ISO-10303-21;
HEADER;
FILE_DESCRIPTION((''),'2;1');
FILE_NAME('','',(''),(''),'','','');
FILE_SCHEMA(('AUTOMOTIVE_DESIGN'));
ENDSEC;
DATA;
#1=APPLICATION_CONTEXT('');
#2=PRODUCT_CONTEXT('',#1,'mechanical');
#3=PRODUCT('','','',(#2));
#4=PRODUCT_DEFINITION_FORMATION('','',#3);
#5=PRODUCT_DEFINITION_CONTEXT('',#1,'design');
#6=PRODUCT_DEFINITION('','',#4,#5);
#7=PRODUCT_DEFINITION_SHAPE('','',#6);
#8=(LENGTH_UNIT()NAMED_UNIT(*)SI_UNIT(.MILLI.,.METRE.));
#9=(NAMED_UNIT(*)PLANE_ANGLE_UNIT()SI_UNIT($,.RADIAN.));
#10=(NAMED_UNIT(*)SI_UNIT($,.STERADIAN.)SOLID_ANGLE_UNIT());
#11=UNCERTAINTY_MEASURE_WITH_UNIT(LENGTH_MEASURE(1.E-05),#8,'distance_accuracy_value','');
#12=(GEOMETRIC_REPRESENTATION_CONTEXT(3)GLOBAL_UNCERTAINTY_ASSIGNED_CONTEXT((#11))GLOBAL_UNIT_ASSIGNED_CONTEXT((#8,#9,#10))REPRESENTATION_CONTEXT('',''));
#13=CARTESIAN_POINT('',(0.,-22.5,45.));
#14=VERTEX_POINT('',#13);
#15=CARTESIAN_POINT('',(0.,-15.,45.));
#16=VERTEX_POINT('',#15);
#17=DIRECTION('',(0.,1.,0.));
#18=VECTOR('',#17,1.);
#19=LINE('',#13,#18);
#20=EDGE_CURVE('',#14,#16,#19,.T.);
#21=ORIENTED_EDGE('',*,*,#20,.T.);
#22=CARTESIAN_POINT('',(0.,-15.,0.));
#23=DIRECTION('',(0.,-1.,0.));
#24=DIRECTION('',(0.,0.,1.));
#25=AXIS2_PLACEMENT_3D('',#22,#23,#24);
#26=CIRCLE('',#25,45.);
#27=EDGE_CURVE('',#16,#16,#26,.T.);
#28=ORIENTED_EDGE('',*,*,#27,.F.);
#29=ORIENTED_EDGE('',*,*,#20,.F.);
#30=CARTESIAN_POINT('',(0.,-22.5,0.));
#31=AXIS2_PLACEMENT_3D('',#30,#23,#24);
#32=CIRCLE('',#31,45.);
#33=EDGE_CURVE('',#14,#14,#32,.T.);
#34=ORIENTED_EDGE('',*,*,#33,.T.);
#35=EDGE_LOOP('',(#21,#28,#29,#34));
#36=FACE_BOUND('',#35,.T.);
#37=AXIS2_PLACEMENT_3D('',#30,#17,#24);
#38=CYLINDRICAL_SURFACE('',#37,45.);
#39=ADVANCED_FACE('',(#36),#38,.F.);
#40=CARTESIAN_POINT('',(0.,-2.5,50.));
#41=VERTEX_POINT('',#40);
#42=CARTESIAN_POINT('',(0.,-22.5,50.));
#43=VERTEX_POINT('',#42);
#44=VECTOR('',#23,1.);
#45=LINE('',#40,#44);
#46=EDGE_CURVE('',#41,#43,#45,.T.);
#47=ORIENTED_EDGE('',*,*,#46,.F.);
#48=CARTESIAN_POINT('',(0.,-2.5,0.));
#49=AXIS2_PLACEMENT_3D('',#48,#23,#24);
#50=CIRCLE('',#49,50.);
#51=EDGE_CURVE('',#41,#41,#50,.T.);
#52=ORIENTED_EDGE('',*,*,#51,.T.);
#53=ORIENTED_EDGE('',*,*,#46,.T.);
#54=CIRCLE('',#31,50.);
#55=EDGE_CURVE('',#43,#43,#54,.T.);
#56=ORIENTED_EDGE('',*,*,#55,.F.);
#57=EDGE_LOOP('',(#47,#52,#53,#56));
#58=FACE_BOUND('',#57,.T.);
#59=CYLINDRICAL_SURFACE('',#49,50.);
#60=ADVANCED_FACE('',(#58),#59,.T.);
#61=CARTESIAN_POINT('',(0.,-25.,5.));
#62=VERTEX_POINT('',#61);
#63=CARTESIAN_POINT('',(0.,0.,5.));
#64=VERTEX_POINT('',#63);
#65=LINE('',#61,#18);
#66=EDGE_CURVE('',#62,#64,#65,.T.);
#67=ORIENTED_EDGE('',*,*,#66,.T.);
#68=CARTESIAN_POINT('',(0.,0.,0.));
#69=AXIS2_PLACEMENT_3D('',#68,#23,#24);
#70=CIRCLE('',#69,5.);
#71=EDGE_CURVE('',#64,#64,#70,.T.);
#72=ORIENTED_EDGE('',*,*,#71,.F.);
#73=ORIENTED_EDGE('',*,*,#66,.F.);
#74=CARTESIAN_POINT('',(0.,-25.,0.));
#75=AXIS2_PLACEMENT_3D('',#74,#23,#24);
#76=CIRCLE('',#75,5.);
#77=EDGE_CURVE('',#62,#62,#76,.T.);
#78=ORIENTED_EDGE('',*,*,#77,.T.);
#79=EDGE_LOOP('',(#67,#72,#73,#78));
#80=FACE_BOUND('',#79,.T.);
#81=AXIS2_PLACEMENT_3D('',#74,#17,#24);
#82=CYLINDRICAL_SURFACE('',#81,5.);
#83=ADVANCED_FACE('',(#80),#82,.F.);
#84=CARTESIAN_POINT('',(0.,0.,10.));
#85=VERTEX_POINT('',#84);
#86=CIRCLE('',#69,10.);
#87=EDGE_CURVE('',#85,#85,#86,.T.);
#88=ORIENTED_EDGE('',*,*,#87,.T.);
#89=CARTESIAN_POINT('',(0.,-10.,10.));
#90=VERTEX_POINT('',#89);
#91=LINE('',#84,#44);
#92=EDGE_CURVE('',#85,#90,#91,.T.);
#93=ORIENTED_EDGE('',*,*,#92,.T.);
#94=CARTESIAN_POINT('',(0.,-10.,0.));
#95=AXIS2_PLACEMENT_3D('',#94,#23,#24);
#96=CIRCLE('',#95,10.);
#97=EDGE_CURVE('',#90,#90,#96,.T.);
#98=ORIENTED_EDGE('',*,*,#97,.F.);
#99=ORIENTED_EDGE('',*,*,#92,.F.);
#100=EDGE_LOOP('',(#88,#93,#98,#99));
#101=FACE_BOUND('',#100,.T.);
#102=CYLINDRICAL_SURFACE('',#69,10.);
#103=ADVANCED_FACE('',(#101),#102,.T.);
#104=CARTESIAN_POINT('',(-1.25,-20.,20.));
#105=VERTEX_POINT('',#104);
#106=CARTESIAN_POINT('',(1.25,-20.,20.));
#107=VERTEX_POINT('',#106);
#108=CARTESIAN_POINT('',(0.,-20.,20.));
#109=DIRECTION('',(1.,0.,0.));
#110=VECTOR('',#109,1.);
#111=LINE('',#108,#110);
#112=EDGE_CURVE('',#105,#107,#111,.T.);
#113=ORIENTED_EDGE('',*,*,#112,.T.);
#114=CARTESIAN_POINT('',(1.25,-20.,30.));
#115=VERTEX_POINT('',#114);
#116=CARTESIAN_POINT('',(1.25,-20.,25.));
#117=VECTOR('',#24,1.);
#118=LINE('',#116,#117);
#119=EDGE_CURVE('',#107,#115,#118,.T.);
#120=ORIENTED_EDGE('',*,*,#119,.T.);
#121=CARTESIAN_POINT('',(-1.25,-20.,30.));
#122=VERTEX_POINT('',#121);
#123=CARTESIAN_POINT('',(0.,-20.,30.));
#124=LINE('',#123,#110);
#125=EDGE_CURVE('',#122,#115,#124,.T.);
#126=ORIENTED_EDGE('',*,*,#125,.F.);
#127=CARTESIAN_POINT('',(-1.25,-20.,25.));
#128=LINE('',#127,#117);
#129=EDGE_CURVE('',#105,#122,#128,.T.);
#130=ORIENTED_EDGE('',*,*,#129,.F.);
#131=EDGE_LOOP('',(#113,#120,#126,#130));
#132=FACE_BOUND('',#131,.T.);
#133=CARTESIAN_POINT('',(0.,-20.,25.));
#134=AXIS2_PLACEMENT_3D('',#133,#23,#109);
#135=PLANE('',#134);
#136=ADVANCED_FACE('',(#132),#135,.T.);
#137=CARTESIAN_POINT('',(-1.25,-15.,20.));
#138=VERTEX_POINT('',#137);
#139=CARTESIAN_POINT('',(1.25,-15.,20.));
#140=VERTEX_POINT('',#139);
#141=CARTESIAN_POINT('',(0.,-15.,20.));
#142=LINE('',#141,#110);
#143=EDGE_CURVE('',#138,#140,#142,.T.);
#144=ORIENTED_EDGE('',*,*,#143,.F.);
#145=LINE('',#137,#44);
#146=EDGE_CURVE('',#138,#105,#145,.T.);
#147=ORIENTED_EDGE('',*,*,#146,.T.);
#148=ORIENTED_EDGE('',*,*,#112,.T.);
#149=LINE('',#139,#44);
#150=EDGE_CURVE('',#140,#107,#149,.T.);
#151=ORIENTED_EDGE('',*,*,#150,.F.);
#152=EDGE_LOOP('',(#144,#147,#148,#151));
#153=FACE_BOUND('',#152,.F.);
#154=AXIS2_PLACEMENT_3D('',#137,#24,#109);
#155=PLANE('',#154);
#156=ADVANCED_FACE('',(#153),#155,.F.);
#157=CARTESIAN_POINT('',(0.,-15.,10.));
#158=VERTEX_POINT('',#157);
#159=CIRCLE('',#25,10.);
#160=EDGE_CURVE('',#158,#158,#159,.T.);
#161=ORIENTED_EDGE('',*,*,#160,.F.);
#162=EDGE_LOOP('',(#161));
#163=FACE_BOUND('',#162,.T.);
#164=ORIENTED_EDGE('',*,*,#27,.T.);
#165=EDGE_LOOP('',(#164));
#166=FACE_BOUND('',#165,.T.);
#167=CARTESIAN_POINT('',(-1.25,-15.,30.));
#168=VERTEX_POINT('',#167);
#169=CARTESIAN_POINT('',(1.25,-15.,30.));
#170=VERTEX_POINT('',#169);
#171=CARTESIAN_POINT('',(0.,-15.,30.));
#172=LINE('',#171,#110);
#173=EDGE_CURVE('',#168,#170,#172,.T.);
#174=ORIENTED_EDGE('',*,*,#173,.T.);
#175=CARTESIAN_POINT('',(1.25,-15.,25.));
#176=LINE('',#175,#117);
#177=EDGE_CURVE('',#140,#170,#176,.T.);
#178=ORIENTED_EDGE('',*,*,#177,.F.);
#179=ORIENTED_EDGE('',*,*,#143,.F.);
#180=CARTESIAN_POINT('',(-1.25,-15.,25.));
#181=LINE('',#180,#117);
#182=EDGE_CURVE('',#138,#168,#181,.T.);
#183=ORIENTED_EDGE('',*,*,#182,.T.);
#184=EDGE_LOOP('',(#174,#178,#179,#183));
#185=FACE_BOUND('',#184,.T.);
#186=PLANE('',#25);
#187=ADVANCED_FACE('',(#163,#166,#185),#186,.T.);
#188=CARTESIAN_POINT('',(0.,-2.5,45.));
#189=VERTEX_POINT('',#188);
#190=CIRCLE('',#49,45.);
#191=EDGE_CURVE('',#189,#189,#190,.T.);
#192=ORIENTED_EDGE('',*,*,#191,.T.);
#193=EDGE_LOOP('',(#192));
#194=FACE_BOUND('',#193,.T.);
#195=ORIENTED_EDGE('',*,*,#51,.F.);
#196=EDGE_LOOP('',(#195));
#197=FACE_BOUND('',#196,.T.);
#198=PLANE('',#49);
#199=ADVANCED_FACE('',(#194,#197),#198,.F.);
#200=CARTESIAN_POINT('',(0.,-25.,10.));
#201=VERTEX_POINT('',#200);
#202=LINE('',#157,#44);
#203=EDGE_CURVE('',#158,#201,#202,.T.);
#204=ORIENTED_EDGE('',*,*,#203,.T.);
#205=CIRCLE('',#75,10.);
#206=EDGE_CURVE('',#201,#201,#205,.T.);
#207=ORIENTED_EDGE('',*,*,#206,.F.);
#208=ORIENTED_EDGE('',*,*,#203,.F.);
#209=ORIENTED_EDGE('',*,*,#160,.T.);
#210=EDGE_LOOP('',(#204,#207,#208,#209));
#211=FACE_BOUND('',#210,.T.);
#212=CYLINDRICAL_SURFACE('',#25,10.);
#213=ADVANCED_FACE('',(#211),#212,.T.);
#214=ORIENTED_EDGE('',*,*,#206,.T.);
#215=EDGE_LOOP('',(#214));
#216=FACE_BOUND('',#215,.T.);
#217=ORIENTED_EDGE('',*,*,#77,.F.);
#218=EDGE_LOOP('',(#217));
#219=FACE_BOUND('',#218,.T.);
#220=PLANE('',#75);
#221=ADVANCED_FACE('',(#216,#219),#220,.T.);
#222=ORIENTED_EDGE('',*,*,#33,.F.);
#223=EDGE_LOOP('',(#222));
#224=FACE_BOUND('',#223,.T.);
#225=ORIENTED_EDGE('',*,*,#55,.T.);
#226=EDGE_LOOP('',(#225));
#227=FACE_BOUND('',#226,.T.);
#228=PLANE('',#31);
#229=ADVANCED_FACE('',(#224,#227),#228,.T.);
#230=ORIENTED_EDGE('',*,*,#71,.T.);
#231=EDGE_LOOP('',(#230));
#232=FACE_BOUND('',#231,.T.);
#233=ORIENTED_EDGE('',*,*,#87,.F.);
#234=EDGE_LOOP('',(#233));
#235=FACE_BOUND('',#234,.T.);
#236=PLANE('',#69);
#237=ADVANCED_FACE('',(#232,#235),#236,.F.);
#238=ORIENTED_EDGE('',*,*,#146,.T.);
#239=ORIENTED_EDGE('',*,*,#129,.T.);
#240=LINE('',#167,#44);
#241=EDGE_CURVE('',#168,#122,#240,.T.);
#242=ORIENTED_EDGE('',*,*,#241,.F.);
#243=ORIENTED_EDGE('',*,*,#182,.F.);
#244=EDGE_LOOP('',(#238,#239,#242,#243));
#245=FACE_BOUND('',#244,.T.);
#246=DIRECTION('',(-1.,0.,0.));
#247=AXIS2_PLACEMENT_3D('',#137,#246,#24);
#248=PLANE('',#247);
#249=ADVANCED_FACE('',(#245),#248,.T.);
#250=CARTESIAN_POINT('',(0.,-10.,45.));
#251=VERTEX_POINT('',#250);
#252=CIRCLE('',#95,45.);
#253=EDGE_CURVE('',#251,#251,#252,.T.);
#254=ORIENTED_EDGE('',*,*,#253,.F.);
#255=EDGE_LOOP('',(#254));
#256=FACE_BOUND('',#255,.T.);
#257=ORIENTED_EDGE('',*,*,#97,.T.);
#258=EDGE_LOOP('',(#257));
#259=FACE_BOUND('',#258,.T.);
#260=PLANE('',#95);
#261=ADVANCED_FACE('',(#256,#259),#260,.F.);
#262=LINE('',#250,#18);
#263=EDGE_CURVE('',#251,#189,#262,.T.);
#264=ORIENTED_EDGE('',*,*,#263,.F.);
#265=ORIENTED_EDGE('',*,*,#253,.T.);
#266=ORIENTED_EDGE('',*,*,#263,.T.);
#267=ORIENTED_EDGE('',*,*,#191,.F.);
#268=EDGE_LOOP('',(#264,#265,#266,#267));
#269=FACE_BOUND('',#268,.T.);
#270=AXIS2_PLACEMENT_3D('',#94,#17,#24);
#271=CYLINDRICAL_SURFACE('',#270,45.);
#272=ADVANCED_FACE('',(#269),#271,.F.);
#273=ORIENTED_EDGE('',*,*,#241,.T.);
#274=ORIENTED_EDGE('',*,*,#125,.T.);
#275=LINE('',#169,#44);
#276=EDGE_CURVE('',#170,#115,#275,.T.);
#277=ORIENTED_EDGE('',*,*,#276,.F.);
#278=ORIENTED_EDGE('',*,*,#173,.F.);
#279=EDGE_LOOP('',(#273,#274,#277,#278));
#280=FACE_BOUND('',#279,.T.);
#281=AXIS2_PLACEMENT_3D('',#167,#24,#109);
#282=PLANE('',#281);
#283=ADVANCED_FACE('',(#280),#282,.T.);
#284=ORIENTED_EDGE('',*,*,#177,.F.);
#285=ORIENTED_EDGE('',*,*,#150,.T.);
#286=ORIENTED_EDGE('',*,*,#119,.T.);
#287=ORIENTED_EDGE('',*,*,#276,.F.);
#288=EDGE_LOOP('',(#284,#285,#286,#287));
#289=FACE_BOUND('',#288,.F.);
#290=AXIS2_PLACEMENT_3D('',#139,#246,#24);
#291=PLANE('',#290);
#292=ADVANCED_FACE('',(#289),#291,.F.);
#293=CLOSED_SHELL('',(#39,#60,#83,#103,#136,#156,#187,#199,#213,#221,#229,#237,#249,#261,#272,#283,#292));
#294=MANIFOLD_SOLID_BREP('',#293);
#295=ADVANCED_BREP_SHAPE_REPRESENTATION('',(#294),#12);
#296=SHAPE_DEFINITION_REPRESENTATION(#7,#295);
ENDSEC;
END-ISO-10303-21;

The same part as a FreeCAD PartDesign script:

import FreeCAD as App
import Part
import Sketcher
from FreeCAD import Vector


def add_polygon(sketch, points):
    """Adds a closed chain of lines whose ends are joined by coincident constraints."""
    first, n = sketch.GeometryCount, len(points)
    for a, b in zip(points, points[1:] + points[:1]):
        sketch.addGeometry(Part.LineSegment(App.Vector(*a, 0), App.Vector(*b, 0)), False)
    for i in range(n):
        sketch.addConstraint(Sketcher.Constraint("Coincident", first + i, 2, first + (i + 1) % n, 1))

doc = App.newDocument("Part")
params = doc.addObject("Spreadsheet::Sheet", "Params")
for row, (alias, value) in enumerate([
    ("sketch1_width", "25 mm"),
    ("sketch1_width2", "10 mm"),
    ("sketch1_width3", "20 mm"),
    ("sketch1_height", "5 mm"),
    ("sketch1_height2", "35 mm"),
    ("revolution_angle", "360 deg"),
    ("sketch2_height", "10 mm"),
    ("sketch2_width", "2.5 mm"),
    ("pad1_length", "5 mm"),
], start=1):
    params.set(f"A{row}", alias)
    params.set(f"B{row}", "=" + value)
    params.setAlias(f"B{row}", alias)

body = doc.addObject("PartDesign::Body", "Body")

# Sketch on YZ plane
sketch1 = body.newObject("Sketcher::SketchObject", "Sketch")
sketch1.AttachmentSupport = (doc.getObject("YZ_Plane"), [""])
sketch1.MapMode = "FlatFace"
add_polygon(sketch1, [(-25, 5), (0, 5), (0, 10), (-10, 10), (-10, 45), (-2, 45), (-2, 50), (-22, 50), (-22, 45), (-15, 45), (-15, 10), (-25, 10)])  # lines 0-11
sketch1.addConstraint(Sketcher.Constraint("Horizontal", 0))
sketch1.addConstraint(Sketcher.Constraint("Vertical", 1))
sketch1.addConstraint(Sketcher.Constraint("Horizontal", 2))
sketch1.addConstraint(Sketcher.Constraint("Vertical", 3))
sketch1.addConstraint(Sketcher.Constraint("Horizontal", 4))
sketch1.addConstraint(Sketcher.Constraint("Vertical", 5))
sketch1.addConstraint(Sketcher.Constraint("Horizontal", 6))
sketch1.addConstraint(Sketcher.Constraint("Vertical", 7))
sketch1.addConstraint(Sketcher.Constraint("Horizontal", 8))
sketch1.addConstraint(Sketcher.Constraint("Vertical", 9))
sketch1.addConstraint(Sketcher.Constraint("Horizontal", 10))
sketch1.addConstraint(Sketcher.Constraint("Vertical", 11))
sketch1.addConstraint(Sketcher.Constraint("PointOnObject", 0, 2, -2))
sketch1.addConstraint(Sketcher.Constraint("Horizontal", 4, 2, 7, 2))
sketch1.addConstraint(Sketcher.Constraint("Horizontal", 2, 2, 9, 2))
sketch1.addConstraint(Sketcher.Constraint("Equal", 4, 8))
sketch1.addConstraint(Sketcher.Constraint("Equal", 2, 10))
sketch1.addConstraint(Sketcher.Constraint("Equal", 1, 5))
sketch1.addConstraint(Sketcher.Constraint("DistanceX", 0, 1, 0, 2, 25.0))
sketch1.addConstraint(Sketcher.Constraint("DistanceX", 2, 2, 2, 1, 10.0))
sketch1.addConstraint(Sketcher.Constraint("DistanceX", 6, 2, 6, 1, 20.0))
sketch1.addConstraint(Sketcher.Constraint("DistanceY", 1, 1, 1, 2, 5.0))
sketch1.addConstraint(Sketcher.Constraint("DistanceY", 3, 1, 3, 2, 35.0))
sketch1.addConstraint(Sketcher.Constraint("DistanceY", -1, 1, 0, 2, 5.0))
sketch1.setExpression("Constraints[30]", "Params.sketch1_width")
sketch1.setExpression("Constraints[31]", "Params.sketch1_width2")
sketch1.setExpression("Constraints[32]", "Params.sketch1_width3")
sketch1.setExpression("Constraints[33]", "Params.sketch1_height")
sketch1.setExpression("Constraints[34]", "Params.sketch1_height2")
revolution = body.newObject("PartDesign::Revolution", "Revolution")
revolution.Profile = sketch1
revolution.ReferenceAxis = (sketch1, ["H_Axis"])
revolution.setExpression("Angle", "Params.revolution_angle")

# Sketch on XZ plane
sketch2 = body.newObject("Sketcher::SketchObject", "Sketch001")
sketch2.AttachmentSupport = (doc.getObject("XZ_Plane"), [""])
sketch2.MapMode = "FlatFace"
sketch2.AttachmentOffset = App.Placement(Vector(0, 0, 15), App.Rotation())
add_polygon(sketch2, [(-1.2, 30), (-1.2, 20), (1.2, 20), (1.2, 30)])  # lines 0-3
sketch2.addConstraint(Sketcher.Constraint("Vertical", 0))
sketch2.addConstraint(Sketcher.Constraint("Horizontal", 1))
sketch2.addConstraint(Sketcher.Constraint("Vertical", 2))
sketch2.addConstraint(Sketcher.Constraint("Horizontal", 3))
sketch2.addConstraint(Sketcher.Constraint("DistanceY", 0, 2, 0, 1, 10.0))
sketch2.addConstraint(Sketcher.Constraint("DistanceX", 1, 1, 1, 2, 2.5))
sketch2.addConstraint(Sketcher.Constraint("DistanceY", -1, 1, 0, 2, 20.0))
sketch2.addConstraint(Sketcher.Constraint("DistanceX", 0, 2, -1, 1, 1.25))
sketch2.setExpression("Constraints[8]", "Params.sketch2_height")
sketch2.setExpression("Constraints[9]", "Params.sketch2_width")
pad1 = body.newObject("PartDesign::Pad", "Pad")
pad1.Profile = sketch2
pad1.setExpression("Length", "Params.pad1_length")

doc.recompute()
